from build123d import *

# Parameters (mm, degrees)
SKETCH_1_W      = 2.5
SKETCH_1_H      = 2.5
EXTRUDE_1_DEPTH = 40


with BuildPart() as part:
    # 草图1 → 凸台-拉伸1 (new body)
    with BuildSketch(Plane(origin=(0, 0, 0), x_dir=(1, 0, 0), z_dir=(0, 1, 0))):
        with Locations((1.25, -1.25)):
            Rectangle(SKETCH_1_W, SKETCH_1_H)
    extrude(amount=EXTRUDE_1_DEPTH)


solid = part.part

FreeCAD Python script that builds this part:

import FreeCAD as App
import Part
import Sketcher
Q = App.Units.Quantity


def add_polygon(sketch, points):
    """Adds a closed chain of lines whose ends are joined by coincident constraints."""
    first, n = sketch.GeometryCount, len(points)
    for a, b in zip(points, points[1:] + points[:1]):
        sketch.addGeometry(Part.LineSegment(App.Vector(*a, 0), App.Vector(*b, 0)), False)
    for i in range(n):
        sketch.addConstraint(Sketcher.Constraint("Coincident", first + i, 2, first + (i + 1) % n, 1))

doc = App.newDocument("Part")
body = doc.addObject("PartDesign::Body", "Body")

# Sketch on XZ plane
sketch1 = body.newObject("Sketcher::SketchObject", "Sketch")
sketch1.AttachmentSupport = (doc.getObject("XZ_Plane"), [""])
sketch1.MapMode = "FlatFace"
add_polygon(sketch1, [(0, 0), (0, 2.5), (2.5, 2.5), (2.5, 0)])  # lines 0-3
sketch1.addConstraint([
    Sketcher.Constraint("Vertical", 0),
    Sketcher.Constraint("Horizontal", 1),
    Sketcher.Constraint("Vertical", 2),
    Sketcher.Constraint("Horizontal", 3),
    Sketcher.Constraint("Coincident", 3, 2, -1, 1),
    Sketcher.Constraint("Equal", 3, 0),
    Sketcher.Constraint("DistanceX", 1, 1, 1, 2, Q("2.5 mm")),
])
pad1 = body.newObject("PartDesign::Pad", "Pad")
pad1.Profile = sketch1
pad1.Length = 40
pad1.Reversed = True

doc.recompute()
